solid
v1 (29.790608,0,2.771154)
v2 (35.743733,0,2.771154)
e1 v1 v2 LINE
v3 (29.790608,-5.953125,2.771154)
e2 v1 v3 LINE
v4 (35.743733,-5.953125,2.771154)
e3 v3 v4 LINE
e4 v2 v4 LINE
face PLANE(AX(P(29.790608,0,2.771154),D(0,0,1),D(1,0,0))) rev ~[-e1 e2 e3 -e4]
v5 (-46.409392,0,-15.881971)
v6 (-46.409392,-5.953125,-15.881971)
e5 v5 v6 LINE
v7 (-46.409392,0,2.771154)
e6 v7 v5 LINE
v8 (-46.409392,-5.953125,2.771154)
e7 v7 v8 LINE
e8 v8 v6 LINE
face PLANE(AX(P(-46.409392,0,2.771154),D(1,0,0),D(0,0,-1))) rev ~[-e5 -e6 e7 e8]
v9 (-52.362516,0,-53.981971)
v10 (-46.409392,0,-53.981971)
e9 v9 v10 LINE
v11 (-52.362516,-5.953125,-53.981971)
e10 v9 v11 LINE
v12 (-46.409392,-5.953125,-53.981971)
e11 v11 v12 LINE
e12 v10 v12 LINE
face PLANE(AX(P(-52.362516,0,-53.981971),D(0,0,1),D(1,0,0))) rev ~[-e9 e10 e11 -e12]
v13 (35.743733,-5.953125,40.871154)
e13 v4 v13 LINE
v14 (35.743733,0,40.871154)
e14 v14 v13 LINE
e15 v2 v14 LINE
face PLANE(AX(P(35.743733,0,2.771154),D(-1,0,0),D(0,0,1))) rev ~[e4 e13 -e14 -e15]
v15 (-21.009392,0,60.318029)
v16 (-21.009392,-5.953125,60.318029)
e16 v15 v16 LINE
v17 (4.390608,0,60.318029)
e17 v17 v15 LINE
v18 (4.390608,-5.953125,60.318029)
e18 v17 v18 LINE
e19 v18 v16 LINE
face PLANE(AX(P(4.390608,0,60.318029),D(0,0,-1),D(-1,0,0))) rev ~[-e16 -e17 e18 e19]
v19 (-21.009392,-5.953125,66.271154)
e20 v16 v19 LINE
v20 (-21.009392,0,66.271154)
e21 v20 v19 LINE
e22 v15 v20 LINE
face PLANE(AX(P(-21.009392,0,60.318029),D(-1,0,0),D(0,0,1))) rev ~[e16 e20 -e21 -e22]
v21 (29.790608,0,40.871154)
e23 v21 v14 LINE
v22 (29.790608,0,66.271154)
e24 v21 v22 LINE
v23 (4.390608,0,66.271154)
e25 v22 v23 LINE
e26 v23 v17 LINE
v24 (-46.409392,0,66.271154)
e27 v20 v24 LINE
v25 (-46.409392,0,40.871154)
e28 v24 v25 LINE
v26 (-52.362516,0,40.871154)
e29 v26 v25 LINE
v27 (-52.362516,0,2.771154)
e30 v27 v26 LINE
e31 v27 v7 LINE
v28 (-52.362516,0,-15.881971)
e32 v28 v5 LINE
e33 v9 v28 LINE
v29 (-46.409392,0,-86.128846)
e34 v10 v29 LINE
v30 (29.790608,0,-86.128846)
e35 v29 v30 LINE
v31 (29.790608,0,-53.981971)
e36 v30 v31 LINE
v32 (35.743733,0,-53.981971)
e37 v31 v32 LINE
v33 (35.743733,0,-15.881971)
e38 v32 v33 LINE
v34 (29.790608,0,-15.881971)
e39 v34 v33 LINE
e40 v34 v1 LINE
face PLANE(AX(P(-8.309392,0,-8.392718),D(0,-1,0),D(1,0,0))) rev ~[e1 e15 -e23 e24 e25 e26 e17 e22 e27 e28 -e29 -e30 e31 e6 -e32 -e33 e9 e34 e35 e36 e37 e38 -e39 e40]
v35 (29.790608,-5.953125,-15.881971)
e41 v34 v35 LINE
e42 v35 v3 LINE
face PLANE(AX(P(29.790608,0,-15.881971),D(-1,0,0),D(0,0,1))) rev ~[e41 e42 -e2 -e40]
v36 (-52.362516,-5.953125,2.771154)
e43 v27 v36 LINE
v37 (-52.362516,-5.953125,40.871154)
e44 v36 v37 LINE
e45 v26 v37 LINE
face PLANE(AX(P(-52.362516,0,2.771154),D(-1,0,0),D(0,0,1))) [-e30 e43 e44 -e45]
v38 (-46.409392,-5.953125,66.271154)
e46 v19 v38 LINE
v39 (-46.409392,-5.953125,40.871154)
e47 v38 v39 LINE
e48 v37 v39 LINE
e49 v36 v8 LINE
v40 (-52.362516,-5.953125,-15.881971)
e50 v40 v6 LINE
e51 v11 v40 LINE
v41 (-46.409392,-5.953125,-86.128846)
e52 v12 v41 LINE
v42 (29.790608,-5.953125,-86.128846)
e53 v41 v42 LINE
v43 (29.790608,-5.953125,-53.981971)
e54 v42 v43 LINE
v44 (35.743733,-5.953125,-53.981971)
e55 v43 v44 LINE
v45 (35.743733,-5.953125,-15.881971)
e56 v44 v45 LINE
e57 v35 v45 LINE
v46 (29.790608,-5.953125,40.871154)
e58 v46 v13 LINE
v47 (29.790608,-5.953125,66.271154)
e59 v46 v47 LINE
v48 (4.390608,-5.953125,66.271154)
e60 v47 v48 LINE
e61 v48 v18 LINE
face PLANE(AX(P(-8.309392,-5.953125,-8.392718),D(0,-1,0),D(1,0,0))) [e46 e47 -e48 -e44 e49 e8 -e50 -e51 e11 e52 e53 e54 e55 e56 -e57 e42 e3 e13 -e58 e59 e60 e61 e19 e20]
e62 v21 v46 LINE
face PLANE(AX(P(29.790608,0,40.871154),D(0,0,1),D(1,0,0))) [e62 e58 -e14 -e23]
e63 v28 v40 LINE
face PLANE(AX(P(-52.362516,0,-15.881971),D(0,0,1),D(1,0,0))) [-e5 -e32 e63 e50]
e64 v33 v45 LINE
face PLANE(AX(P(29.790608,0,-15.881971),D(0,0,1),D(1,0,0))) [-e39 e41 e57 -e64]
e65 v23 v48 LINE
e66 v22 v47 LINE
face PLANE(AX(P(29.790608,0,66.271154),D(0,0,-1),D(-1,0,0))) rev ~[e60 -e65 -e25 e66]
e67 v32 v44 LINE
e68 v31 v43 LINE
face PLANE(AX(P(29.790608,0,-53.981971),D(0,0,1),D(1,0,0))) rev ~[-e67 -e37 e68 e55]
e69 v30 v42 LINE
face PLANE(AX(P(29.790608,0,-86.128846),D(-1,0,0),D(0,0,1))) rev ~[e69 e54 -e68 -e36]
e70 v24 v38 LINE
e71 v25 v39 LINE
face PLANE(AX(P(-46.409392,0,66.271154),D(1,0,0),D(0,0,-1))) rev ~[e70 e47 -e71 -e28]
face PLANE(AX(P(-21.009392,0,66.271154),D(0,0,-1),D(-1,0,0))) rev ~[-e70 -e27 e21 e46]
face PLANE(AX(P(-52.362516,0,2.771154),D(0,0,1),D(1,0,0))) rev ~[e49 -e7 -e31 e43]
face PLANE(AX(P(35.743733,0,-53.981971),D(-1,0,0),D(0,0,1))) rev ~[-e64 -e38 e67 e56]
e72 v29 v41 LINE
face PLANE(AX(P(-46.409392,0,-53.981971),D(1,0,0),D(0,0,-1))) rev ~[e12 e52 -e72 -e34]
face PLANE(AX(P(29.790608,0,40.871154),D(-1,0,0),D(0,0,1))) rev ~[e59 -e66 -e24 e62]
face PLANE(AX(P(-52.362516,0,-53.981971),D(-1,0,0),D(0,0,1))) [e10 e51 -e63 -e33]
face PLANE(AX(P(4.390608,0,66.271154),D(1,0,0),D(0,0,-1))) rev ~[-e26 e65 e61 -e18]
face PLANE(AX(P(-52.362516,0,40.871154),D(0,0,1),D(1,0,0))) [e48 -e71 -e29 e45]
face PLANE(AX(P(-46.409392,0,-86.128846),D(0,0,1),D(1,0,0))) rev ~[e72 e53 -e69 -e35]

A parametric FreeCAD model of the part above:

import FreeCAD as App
import Part
import Sketcher
from FreeCAD import Vector
Q = App.Units.Quantity

doc = App.newDocument("Part")
params = doc.addObject("Spreadsheet::Sheet", "Params")
for row, (alias, value) in enumerate([
    ("sketch1_width", "1 in"),
    ("sketch1_height", "1.5 in"),
    ("sketch1_width2", "0.234375 in"),
    ("pad1_length", "0.234375 in"),
], start=1):
    params.set(f"A{row}", alias)
    params.set(f"B{row}", "=" + value)
    params.setAlias(f"B{row}", alias)

body = doc.addObject("PartDesign::Body", "Body")

# Sketch on XZ plane
sketch1 = doc.addObject("Sketcher::SketchObject", "Sketch")
body.addObject(sketch1)
sketch1.AttachmentSupport = (doc.XZ_Plane, [""])
sketch1.MapMode = "FlatFace"
sketch1.addGeometry([
    Part.LineSegment(Vector(30, 66, 0), Vector(4, 66, 0)),  # 0
    Part.LineSegment(Vector(4, 66, 0), Vector(4, 60, 0)),  # 1
    Part.LineSegment(Vector(4, 60, 0), Vector(-21, 60, 0)),  # 2
    Part.LineSegment(Vector(-21, 60, 0), Vector(-21, 66, 0)),  # 3
    Part.LineSegment(Vector(-21, 66, 0), Vector(-46, 66, 0)),  # 4
    Part.LineSegment(Vector(-46, 66, 0), Vector(-46, 41, 0)),  # 5
    Part.LineSegment(Vector(-46, 41, 0), Vector(-52, 41, 0)),  # 6
    Part.LineSegment(Vector(-52, 41, 0), Vector(-52, 3, 0)),  # 7
    Part.LineSegment(Vector(-52, 3, 0), Vector(-46, 3, 0)),  # 8
    Part.LineSegment(Vector(-46, 3, 0), Vector(-46, -16, 0)),  # 9
    Part.LineSegment(Vector(-46, -16, 0), Vector(-52, -16, 0)),  # 10
    Part.LineSegment(Vector(-52, -16, 0), Vector(-52, -54, 0)),  # 11
    Part.LineSegment(Vector(-52, -54, 0), Vector(-46, -54, 0)),  # 12
    Part.LineSegment(Vector(-46, -54, 0), Vector(-46, -86, 0)),  # 13
    Part.LineSegment(Vector(-46, -86, 0), Vector(30, -86, 0)),  # 14
    Part.LineSegment(Vector(30, -86, 0), Vector(30, -54, 0)),  # 15
    Part.LineSegment(Vector(30, -54, 0), Vector(36, -54, 0)),  # 16
    Part.LineSegment(Vector(36, -54, 0), Vector(36, -16, 0)),  # 17
    Part.LineSegment(Vector(36, -16, 0), Vector(30, -16, 0)),  # 18
    Part.LineSegment(Vector(30, -16, 0), Vector(30, 3, 0)),  # 19
    Part.LineSegment(Vector(30, 3, 0), Vector(36, 3, 0)),  # 20
    Part.LineSegment(Vector(36, 3, 0), Vector(36, 41, 0)),  # 21
    Part.LineSegment(Vector(36, 41, 0), Vector(30, 41, 0)),  # 22
    Part.LineSegment(Vector(30, 41, 0), Vector(30, 66, 0)),  # 23
], False)
sketch1.addConstraint([
    Sketcher.Constraint("Coincident", 0, 2, 1, 1),
    Sketcher.Constraint("Coincident", 1, 2, 2, 1),
    Sketcher.Constraint("Coincident", 2, 2, 3, 1),
    Sketcher.Constraint("Coincident", 3, 2, 4, 1),
    Sketcher.Constraint("Coincident", 4, 2, 5, 1),
    Sketcher.Constraint("Coincident", 5, 2, 6, 1),
    Sketcher.Constraint("Coincident", 6, 2, 7, 1),
    Sketcher.Constraint("Coincident", 7, 2, 8, 1),
    Sketcher.Constraint("Coincident", 8, 2, 9, 1),
    Sketcher.Constraint("Coincident", 9, 2, 10, 1),
    Sketcher.Constraint("Coincident", 10, 2, 11, 1),
    Sketcher.Constraint("Coincident", 11, 2, 12, 1),
    Sketcher.Constraint("Coincident", 12, 2, 13, 1),
    Sketcher.Constraint("Coincident", 13, 2, 14, 1),
    Sketcher.Constraint("Coincident", 14, 2, 15, 1),
    Sketcher.Constraint("Coincident", 15, 2, 16, 1),
    Sketcher.Constraint("Coincident", 16, 2, 17, 1),
    Sketcher.Constraint("Coincident", 17, 2, 18, 1),
    Sketcher.Constraint("Coincident", 18, 2, 19, 1),
    Sketcher.Constraint("Coincident", 19, 2, 20, 1),
    Sketcher.Constraint("Coincident", 20, 2, 21, 1),
    Sketcher.Constraint("Coincident", 21, 2, 22, 1),
    Sketcher.Constraint("Coincident", 22, 2, 23, 1),
    Sketcher.Constraint("Coincident", 23, 2, 0, 1),
    Sketcher.Constraint("Horizontal", 0),
    Sketcher.Constraint("Vertical", 1),
    Sketcher.Constraint("Horizontal", 2),
    Sketcher.Constraint("Vertical", 3),
    Sketcher.Constraint("Horizontal", 4),
    Sketcher.Constraint("Vertical", 5),
    Sketcher.Constraint("Horizontal", 6),
    Sketcher.Constraint("Vertical", 7),
    Sketcher.Constraint("Horizontal", 8),
    Sketcher.Constraint("Vertical", 9),
    Sketcher.Constraint("Horizontal", 10),
    Sketcher.Constraint("Vertical", 11),
    Sketcher.Constraint("Horizontal", 12),
    Sketcher.Constraint("Vertical", 13),
    Sketcher.Constraint("Horizontal", 14),
    Sketcher.Constraint("Vertical", 15),
    Sketcher.Constraint("Horizontal", 16),
    Sketcher.Constraint("Vertical", 17),
    Sketcher.Constraint("Horizontal", 18),
    Sketcher.Constraint("Vertical", 19),
    Sketcher.Constraint("Horizontal", 20),
    Sketcher.Constraint("Vertical", 21),
    Sketcher.Constraint("Horizontal", 22),
    Sketcher.Constraint("Vertical", 23),
    Sketcher.Constraint("Horizontal", 0, 2, 3, 2),
    Sketcher.Constraint("Horizontal", 12, 2, 15, 2),
    Sketcher.Constraint("Horizontal", 10, 2, 17, 2),
    Sketcher.Constraint("Horizontal", 8, 2, 19, 2),
    Sketcher.Constraint("Horizontal", 6, 2, 21, 2),
    Sketcher.Constraint("Vertical", 5, 2, 8, 2),
    Sketcher.Constraint("Vertical", 7, 2, 10, 2),
    Sketcher.Constraint("Vertical", 9, 2, 12, 2),
    Sketcher.Constraint("Vertical", 15, 2, 18, 2),
    Sketcher.Constraint("Vertical", 17, 2, 20, 2),
    Sketcher.Constraint("Vertical", 19, 2, 22, 2),
    Sketcher.Constraint("Equal", 0, 2),
    Sketcher.Constraint("Equal", 2, 4),
    Sketcher.Constraint("Equal", 12, 16),
    Sketcher.Constraint("Equal", 22, 1),
    Sketcher.Constraint("Equal", 4, 5),
    Sketcher.Constraint("Equal", 7, 11),
    Sketcher.Constraint("DistanceX", 0, 2, 0, 1, Q("1 in")),
    Sketcher.Constraint("DistanceY", 7, 2, 7, 1, Q("1.5 in")),
    Sketcher.Constraint("DistanceY", 9, 2, 2, 2, Q("3 in")),
    Sketcher.Constraint("DistanceY", 13, 2, 8, 2, Q("3.5 in")),
    Sketcher.Constraint("DistanceX", 6, 2, 6, 1, Q("0.234375 in")),
    Sketcher.Constraint("DistanceX", -1, 1, 0, 2, Q("4.390608 mm")),
    Sketcher.Constraint("DistanceY", -1, 1, 1, 2, Q("60.318029 mm")),
])
sketch1.setExpression("Constraints[65]", "Params.sketch1_width")
sketch1.setExpression("Constraints[66]", "Params.sketch1_height")
sketch1.setExpression("Constraints[69]", "Params.sketch1_width2")
pad1 = doc.addObject("PartDesign::Pad", "Pad")
body.addObject(pad1)
pad1.Profile = sketch1
pad1.setExpression("Length", "Params.pad1_length")

doc.recompute()
